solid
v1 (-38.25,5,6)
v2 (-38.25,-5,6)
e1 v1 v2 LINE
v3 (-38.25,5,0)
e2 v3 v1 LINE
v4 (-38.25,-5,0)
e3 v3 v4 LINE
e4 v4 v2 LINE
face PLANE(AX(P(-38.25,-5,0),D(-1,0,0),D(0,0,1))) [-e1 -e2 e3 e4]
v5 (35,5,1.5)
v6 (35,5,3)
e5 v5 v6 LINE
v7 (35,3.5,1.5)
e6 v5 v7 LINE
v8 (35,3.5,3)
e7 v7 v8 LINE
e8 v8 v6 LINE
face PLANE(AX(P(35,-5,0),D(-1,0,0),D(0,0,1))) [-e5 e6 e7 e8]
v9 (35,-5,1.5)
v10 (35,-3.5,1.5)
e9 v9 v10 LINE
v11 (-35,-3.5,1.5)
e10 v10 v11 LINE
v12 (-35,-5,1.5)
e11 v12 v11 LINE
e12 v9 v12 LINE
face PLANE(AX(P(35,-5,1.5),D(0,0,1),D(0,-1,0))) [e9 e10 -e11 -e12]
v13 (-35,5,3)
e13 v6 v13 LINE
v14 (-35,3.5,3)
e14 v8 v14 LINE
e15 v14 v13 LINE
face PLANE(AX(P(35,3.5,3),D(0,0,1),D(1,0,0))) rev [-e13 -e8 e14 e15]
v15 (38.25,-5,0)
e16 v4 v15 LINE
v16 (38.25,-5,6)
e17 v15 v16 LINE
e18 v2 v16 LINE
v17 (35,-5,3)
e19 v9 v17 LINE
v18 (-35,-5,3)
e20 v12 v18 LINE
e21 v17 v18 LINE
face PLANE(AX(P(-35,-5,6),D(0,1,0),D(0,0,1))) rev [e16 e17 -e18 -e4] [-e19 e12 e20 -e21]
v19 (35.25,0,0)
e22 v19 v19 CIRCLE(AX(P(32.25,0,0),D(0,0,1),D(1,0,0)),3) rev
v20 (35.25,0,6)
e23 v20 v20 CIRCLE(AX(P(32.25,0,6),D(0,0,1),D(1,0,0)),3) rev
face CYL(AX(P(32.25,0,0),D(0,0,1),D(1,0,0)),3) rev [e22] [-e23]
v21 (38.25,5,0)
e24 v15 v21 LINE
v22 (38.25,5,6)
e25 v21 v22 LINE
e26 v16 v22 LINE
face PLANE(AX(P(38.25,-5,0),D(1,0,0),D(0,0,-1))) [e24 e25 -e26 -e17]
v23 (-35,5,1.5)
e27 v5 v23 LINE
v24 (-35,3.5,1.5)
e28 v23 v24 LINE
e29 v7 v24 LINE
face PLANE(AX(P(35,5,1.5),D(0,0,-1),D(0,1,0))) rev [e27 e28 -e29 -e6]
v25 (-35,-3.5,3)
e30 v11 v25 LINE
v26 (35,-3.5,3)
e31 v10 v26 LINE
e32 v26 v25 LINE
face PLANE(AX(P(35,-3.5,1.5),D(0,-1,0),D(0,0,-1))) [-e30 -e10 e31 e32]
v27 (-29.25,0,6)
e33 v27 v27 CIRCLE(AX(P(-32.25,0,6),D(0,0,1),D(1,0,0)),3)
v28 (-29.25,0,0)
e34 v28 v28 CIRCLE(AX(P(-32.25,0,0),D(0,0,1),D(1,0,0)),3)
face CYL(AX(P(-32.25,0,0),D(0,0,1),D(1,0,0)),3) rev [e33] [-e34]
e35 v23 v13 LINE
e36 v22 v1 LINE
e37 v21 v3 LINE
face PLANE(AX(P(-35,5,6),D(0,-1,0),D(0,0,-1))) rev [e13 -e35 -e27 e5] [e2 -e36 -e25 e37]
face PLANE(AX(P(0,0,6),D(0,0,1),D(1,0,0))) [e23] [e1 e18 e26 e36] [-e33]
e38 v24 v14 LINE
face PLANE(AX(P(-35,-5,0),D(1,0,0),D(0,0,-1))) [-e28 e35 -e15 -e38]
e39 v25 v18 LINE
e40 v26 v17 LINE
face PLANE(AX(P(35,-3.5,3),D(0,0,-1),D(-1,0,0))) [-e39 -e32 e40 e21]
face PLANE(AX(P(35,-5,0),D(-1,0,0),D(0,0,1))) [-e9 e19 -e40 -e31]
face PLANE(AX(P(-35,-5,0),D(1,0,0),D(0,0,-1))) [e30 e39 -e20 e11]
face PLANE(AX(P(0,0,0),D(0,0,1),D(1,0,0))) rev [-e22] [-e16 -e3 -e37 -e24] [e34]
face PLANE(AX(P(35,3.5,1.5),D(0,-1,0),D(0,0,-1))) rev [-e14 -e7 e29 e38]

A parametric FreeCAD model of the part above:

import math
import FreeCAD as App
import Part
import Sketcher

V = App.Vector
Q = App.Units.Quantity

doc = App.newDocument("Part")
body = doc.addObject("PartDesign::Body", "Body")

# Sketch on XY plane
sketch1 = body.newObject("Sketcher::SketchObject", "Sketch")
sketch1.AttachmentSupport = (doc.getObject("XY_Plane"), [""])
sketch1.MapMode = "FlatFace"
sketch1.addGeometry(Part.LineSegment(V(-35, 5, 0), V(-35, -5, 0)), False)
sketch1.addGeometry(Part.LineSegment(V(-35, -5, 0), V(35, -5, 0)), False)
sketch1.addGeometry(Part.LineSegment(V(35, -5, 0), V(35, 5, 0)), False)
sketch1.addGeometry(Part.LineSegment(V(35, 5, 0), V(-35, 5, 0)), False)
sketch1.addConstraint(Sketcher.Constraint("Coincident", 0, 2, 1, 1))
sketch1.addConstraint(Sketcher.Constraint("Coincident", 1, 2, 2, 1))
sketch1.addConstraint(Sketcher.Constraint("Coincident", 2, 2, 3, 1))
sketch1.addConstraint(Sketcher.Constraint("Coincident", 3, 2, 0, 1))
sketch1.addConstraint(Sketcher.Constraint("Vertical", 0))
sketch1.addConstraint(Sketcher.Constraint("Horizontal", 1))
sketch1.addConstraint(Sketcher.Constraint("Vertical", 2))
sketch1.addConstraint(Sketcher.Constraint("Horizontal", 3))
sketch1.addConstraint(Sketcher.Constraint("Symmetric", 0, 2, 2, 2, -1, 1))
sketch1.addConstraint(Sketcher.Constraint("DistanceX", 1, 1, 1, 2, Q("70 mm")))
sketch1.addConstraint(Sketcher.Constraint("DistanceY", 0, 2, 0, 1, Q("10 mm")))
pad1 = body.newObject("PartDesign::Pad", "Pad")
pad1.Profile = sketch1
pad1.Length = 6

# Sketch on YZ plane
sketch2 = body.newObject("Sketcher::SketchObject", "Sketch001")
sketch2.AttachmentSupport = (doc.getObject("YZ_Plane"), [""])
sketch2.MapMode = "FlatFace"
sketch2.AttachmentOffset = App.Placement(V(0, 0, -35), App.Rotation())
sketch2.addGeometry(Part.LineSegment(V(5, 1.5, 0), V(3.5, 1.5, 0)), False)
sketch2.addGeometry(Part.LineSegment(V(3.5, 1.5, 0), V(3.5, 3, 0)), False)
sketch2.addGeometry(Part.LineSegment(V(3.5, 3, 0), V(5, 3, 0)), False)
sketch2.addGeometry(Part.LineSegment(V(5, 3, 0), V(5, 1.5, 0)), False)
sketch2.addGeometry(Part.LineSegment(V(-3.5, 1.5, 0), V(-5, 1.5, 0)), False)
sketch2.addGeometry(Part.LineSegment(V(-5, 1.5, 0), V(-5, 3, 0)), False)
sketch2.addGeometry(Part.LineSegment(V(-5, 3, 0), V(-3.5, 3, 0)), False)
sketch2.addGeometry(Part.LineSegment(V(-3.5, 3, 0), V(-3.5, 1.5, 0)), False)
sketch2.addConstraint(Sketcher.Constraint("Coincident", 0, 2, 1, 1))
sketch2.addConstraint(Sketcher.Constraint("Coincident", 1, 2, 2, 1))
sketch2.addConstraint(Sketcher.Constraint("Coincident", 2, 2, 3, 1))
sketch2.addConstraint(Sketcher.Constraint("Coincident", 3, 2, 0, 1))
sketch2.addConstraint(Sketcher.Constraint("Coincident", 4, 2, 5, 1))
sketch2.addConstraint(Sketcher.Constraint("Coincident", 5, 2, 6, 1))
sketch2.addConstraint(Sketcher.Constraint("Coincident", 6, 2, 7, 1))
sketch2.addConstraint(Sketcher.Constraint("Coincident", 7, 2, 4, 1))
sketch2.addConstraint(Sketcher.Constraint("Horizontal", 0))
sketch2.addConstraint(Sketcher.Constraint("Vertical", 1))
sketch2.addConstraint(Sketcher.Constraint("Horizontal", 2))
sketch2.addConstraint(Sketcher.Constraint("Vertical", 3))
sketch2.addConstraint(Sketcher.Constraint("Horizontal", 4))
sketch2.addConstraint(Sketcher.Constraint("Vertical", 5))
sketch2.addConstraint(Sketcher.Constraint("Horizontal", 6))
sketch2.addConstraint(Sketcher.Constraint("Vertical", 7))
sketch2.addConstraint(Sketcher.Constraint("Symmetric", 3, 2, 4, 2, -2))
sketch2.addConstraint(Sketcher.Constraint("Symmetric", 1, 2, 6, 2, -2))
sketch2.addConstraint(Sketcher.Constraint("Equal", 6, 1))
sketch2.addConstraint(Sketcher.Constraint("DistanceX", 0, 2, 0, 1, Q("1.5 mm")))
sketch2.addConstraint(Sketcher.Constraint("DistanceY", -1, 1, 1, 2, Q("3 mm")))
sketch2.addConstraint(Sketcher.Constraint("DistanceX", -1, 1, 2, 2, Q("5 mm")))
pocket1 = body.newObject("PartDesign::Pocket", "Pocket")
pocket1.Profile = sketch2
pocket1.Type = "ThroughAll"
pocket1.Reversed = True

# Sketch on XY plane
sketch3 = body.newObject("Sketcher::SketchObject", "Sketch002")
sketch3.AttachmentSupport = (doc.getObject("XY_Plane"), [""])
sketch3.MapMode = "FlatFace"
sketch3.AttachmentOffset = App.Placement(V(0, 0, 6), App.Rotation())
sketch3.addGeometry(Part.Circle(V(-29, 0, 0), V(0, 0, 1), 3), False)
sketch3.addGeometry(Part.Circle(V(29, 0, 0), V(0, 0, 1), 3), False)
sketch3.addConstraint(Sketcher.Constraint("Equal", 0, 1))
sketch3.addConstraint(Sketcher.Constraint("Symmetric", 0, 3, 1, 3, -1, 1))
sketch3.addConstraint(Sketcher.Constraint("PointOnObject", 0, 3, -1))
sketch3.addConstraint(Sketcher.Constraint("Diameter", 0, Q("6 mm")))
sketch3.addConstraint(Sketcher.Constraint("DistanceX", 0, 3, -1, 1, Q("29 mm")))
pocket2 = body.newObject("PartDesign::Pocket", "Pocket001")
pocket2.Profile = sketch3
pocket2.Type = "ThroughAll"

# Sketch on XY plane
sketch4 = body.newObject("Sketcher::SketchObject", "Sketch003")
sketch4.AttachmentSupport = (doc.getObject("XY_Plane"), [""])
sketch4.MapMode = "FlatFace"
sketch4.AttachmentOffset = App.Placement(V(0, 0, 6), App.Rotation())
sketch4.addGeometry(Part.Circle(V(-32.2, 0, 0), V(0, 0, 1), 3), False)
sketch4.addConstraint(Sketcher.Constraint("PointOnObject", 0, 3, -1))
sketch4.addConstraint(Sketcher.Constraint("Diameter", 0, Q("6 mm")))
sketch4.addConstraint(Sketcher.Constraint("DistanceX", 0, 3, -1, 1, Q("32.25 mm")))
pocket3 = body.newObject("PartDesign::Pocket", "Pocket002")
pocket3.Profile = sketch4
pocket3.Type = "ThroughAll"

# Sketch on XY plane
sketch5 = body.newObject("Sketcher::SketchObject", "Sketch004")
sketch5.AttachmentSupport = (doc.getObject("XY_Plane"), [""])
sketch5.MapMode = "FlatFace"
sketch5.AttachmentOffset = App.Placement(V(0, 0, 6), App.Rotation())
sketch5.addGeometry(Part.LineSegment(V(35, 5, 0), V(35, -5, 0)), False)
sketch5.addGeometry(Part.LineSegment(V(35, -5, 0), V(38.2, -5, 0)), False)
sketch5.addGeometry(Part.LineSegment(V(38.2, -5, 0), V(38.2, 5, 0)), False)
sketch5.addGeometry(Part.LineSegment(V(38.2, 5, 0), V(35, 5, 0)), False)
sketch5.addGeometry(Part.LineSegment(V(-38.2, 5, 0), V(-38.2, -5, 0)), False)
sketch5.addGeometry(Part.LineSegment(V(-38.2, -5, 0), V(-35, -5, 0)), False)
sketch5.addGeometry(Part.LineSegment(V(-35, -5, 0), V(-35, 5, 0)), False)
sketch5.addGeometry(Part.LineSegment(V(-35, 5, 0), V(-38.2, 5, 0)), False)
sketch5.addConstraint(Sketcher.Constraint("Coincident", 0, 2, 1, 1))
sketch5.addConstraint(Sketcher.Constraint("Coincident", 1, 2, 2, 1))
sketch5.addConstraint(Sketcher.Constraint("Coincident", 2, 2, 3, 1))
sketch5.addConstraint(Sketcher.Constraint("Coincident", 3, 2, 0, 1))
sketch5.addConstraint(Sketcher.Constraint("Coincident", 4, 2, 5, 1))
sketch5.addConstraint(Sketcher.Constraint("Coincident", 5, 2, 6, 1))
sketch5.addConstraint(Sketcher.Constraint("Coincident", 6, 2, 7, 1))
sketch5.addConstraint(Sketcher.Constraint("Coincident", 7, 2, 4, 1))
sketch5.addConstraint(Sketcher.Constraint("Vertical", 0))
sketch5.addConstraint(Sketcher.Constraint("Horizontal", 1))
sketch5.addConstraint(Sketcher.Constraint("Vertical", 2))
sketch5.addConstraint(Sketcher.Constraint("Horizontal", 3))
sketch5.addConstraint(Sketcher.Constraint("Vertical", 4))
sketch5.addConstraint(Sketcher.Constraint("Horizontal", 5))
sketch5.addConstraint(Sketcher.Constraint("Vertical", 6))
sketch5.addConstraint(Sketcher.Constraint("Horizontal", 7))
sketch5.addConstraint(Sketcher.Constraint("Symmetric", 2, 2, 4, 2, -1, 1))
sketch5.addConstraint(Sketcher.Constraint("Symmetric", 0, 2, 6, 2, -1, 1))
sketch5.addConstraint(Sketcher.Constraint("Horizontal", 1, 2, 4, 2))
sketch5.addConstraint(Sketcher.Constraint("DistanceY", 0, 2, 0, 1, Q("10 mm")))
sketch5.addConstraint(Sketcher.Constraint("DistanceX", -1, 1, 0, 2, Q("35 mm")))
sketch5.addConstraint(Sketcher.Constraint("DistanceX", 1, 1, 1, 2, Q("3.25 mm")))
pad2 = body.newObject("PartDesign::Pad", "Pad001")
pad2.Profile = sketch5
pad2.Length = 6
pad2.Reversed = True

# Sketch on XY plane
sketch6 = body.newObject("Sketcher::SketchObject", "Sketch005")
sketch6.AttachmentSupport = (doc.getObject("XY_Plane"), [""])
sketch6.MapMode = "FlatFace"
sketch6.AttachmentOffset = App.Placement(V(0, 0, 6), App.Rotation())
sketch6.addGeometry(Part.ArcOfCircle(Part.Circle(V(-32.2, 0, 0), V(0, 0, 1), 3), math.radians(-156), math.radians(-57)), False)
sketch6.addGeometry(Part.ArcOfCircle(Part.Circle(V(-29, 0, 0), V(0, 0, 1), 3), math.radians(-123), math.radians(123)), False)
sketch6.addGeometry(Part.ArcOfCircle(Part.Circle(V(-32.2, 0, 0), V(0, 0, 1), 3), math.radians(57), math.radians(156)), False)
sketch6.addGeometry(Part.ArcOfCircle(Part.Circle(V(-32.2, 0, 0), V(0, 0, 1), 3), math.radians(156), math.radians(204)), False)
sketch6.addGeometry(Part.ArcOfCircle(Part.Circle(V(29, 0, 0), V(0, 0, 1), 3), math.radians(57), math.radians(303)), False)
sketch6.addGeometry(Part.ArcOfCircle(Part.Circle(V(32.2, 0, 0), V(0, 0, 1), 3), math.radians(-123), math.radians(123)), False)
sketch6.addConstraint(Sketcher.Constraint("Coincident", 0, 2, 1, 1))
sketch6.addConstraint(Sketcher.Constraint("Coincident", 1, 2, 2, 1))
sketch6.addConstraint(Sketcher.Constraint("Tangent", 2, 2, 3, 1))
sketch6.addConstraint(Sketcher.Constraint("Tangent", 3, 2, 0, 1))
sketch6.addConstraint(Sketcher.Constraint("Coincident", 4, 1, 5, 2))
sketch6.addConstraint(Sketcher.Constraint("Coincident", 5, 1, 4, 2))
sketch6.addConstraint(Sketcher.Constraint("Coincident", 2, 3, 0, 3))
sketch6.addConstraint(Sketcher.Constraint("Equal", 0, 1))
sketch6.addConstraint(Sketcher.Constraint("Equal", 3, 4))
sketch6.addConstraint(Sketcher.Constraint("Equal", 4, 5))
sketch6.addConstraint(Sketcher.Constraint("Symmetric", 1, 3, 4, 3, -1, 1))
sketch6.addConstraint(Sketcher.Constraint("Symmetric", 0, 3, 5, 3, -1, 1))
sketch6.addConstraint(Sketcher.Constraint("Symmetric", 1, 2, 4, 1, -2))
sketch6.addConstraint(Sketcher.Constraint("Vertical", 2, 2, 3, 2))
sketch6.addConstraint(Sketcher.Constraint("Radius", 0, Q("3 mm")))
sketch6.addConstraint(Sketcher.Constraint("DistanceX", 1, 3, -1, 1, Q("29 mm")))
sketch6.addConstraint(Sketcher.Constraint("DistanceX", 2, 2, -1, 1, Q("35 mm")))
sketch6.addConstraint(Sketcher.Constraint("DistanceX", 3, 3, 5, 3, Q("64.5 mm")))
pocket4 = body.newObject("PartDesign::Pocket", "Pocket003")
pocket4.Profile = sketch6
pocket4.Type = "ThroughAll"

# Sketch on XY plane
sketch7 = body.newObject("Sketcher::SketchObject", "Sketch006")
sketch7.AttachmentSupport = (doc.getObject("XY_Plane"), [""])
sketch7.MapMode = "FlatFace"
sketch7.AttachmentOffset = App.Placement(V(0, 0, 6), App.Rotation())
sketch7.addGeometry(Part.Circle(V(-29, 0, 0), V(0, 0, 1), 3), False)
sketch7.addGeometry(Part.Circle(V(29, 0, 0), V(0, 0, 1), 3), False)
sketch7.addConstraint(Sketcher.Constraint("Equal", 0, 1))
sketch7.addConstraint(Sketcher.Constraint("Symmetric", 0, 3, 1, 3, -1, 1))
sketch7.addConstraint(Sketcher.Constraint("PointOnObject", 0, 3, -1))
sketch7.addConstraint(Sketcher.Constraint("Diameter", 0, Q("6 mm")))
sketch7.addConstraint(Sketcher.Constraint("DistanceX", 0, 3, -1, 1, Q("29 mm")))
pad3 = body.newObject("PartDesign::Pad", "Pad002")
pad3.Profile = sketch7
pad3.Length = 6
pad3.Reversed = True

# Sketch on XY plane
sketch8 = body.newObject("Sketcher::SketchObject", "Sketch007")
sketch8.AttachmentSupport = (doc.getObject("XY_Plane"), [""])
sketch8.MapMode = "FlatFace"
sketch8.AttachmentOffset = App.Placement(V(0, 0, 6), App.Rotation())
sketch8.addGeometry(Part.Circle(V(-32.2, 0, 0), V(0, 0, 1), 3), False)
sketch8.addGeometry(Part.Circle(V(32.2, 0, 0), V(0, 0, 1), 3), False)
sketch8.addConstraint(Sketcher.Constraint("Equal", 0, 1))
sketch8.addConstraint(Sketcher.Constraint("Symmetric", 0, 3, 1, 3, -1, 1))
sketch8.addConstraint(Sketcher.Constraint("PointOnObject", 0, 3, -1))
sketch8.addConstraint(Sketcher.Constraint("Diameter", 0, Q("6 mm")))
sketch8.addConstraint(Sketcher.Constraint("DistanceX", 0, 3, 1, 3, Q("64.5 mm")))
pocket5 = body.newObject("PartDesign::Pocket", "Pocket004")
pocket5.Profile = sketch8
pocket5.Type = "ThroughAll"

doc.recompute()
